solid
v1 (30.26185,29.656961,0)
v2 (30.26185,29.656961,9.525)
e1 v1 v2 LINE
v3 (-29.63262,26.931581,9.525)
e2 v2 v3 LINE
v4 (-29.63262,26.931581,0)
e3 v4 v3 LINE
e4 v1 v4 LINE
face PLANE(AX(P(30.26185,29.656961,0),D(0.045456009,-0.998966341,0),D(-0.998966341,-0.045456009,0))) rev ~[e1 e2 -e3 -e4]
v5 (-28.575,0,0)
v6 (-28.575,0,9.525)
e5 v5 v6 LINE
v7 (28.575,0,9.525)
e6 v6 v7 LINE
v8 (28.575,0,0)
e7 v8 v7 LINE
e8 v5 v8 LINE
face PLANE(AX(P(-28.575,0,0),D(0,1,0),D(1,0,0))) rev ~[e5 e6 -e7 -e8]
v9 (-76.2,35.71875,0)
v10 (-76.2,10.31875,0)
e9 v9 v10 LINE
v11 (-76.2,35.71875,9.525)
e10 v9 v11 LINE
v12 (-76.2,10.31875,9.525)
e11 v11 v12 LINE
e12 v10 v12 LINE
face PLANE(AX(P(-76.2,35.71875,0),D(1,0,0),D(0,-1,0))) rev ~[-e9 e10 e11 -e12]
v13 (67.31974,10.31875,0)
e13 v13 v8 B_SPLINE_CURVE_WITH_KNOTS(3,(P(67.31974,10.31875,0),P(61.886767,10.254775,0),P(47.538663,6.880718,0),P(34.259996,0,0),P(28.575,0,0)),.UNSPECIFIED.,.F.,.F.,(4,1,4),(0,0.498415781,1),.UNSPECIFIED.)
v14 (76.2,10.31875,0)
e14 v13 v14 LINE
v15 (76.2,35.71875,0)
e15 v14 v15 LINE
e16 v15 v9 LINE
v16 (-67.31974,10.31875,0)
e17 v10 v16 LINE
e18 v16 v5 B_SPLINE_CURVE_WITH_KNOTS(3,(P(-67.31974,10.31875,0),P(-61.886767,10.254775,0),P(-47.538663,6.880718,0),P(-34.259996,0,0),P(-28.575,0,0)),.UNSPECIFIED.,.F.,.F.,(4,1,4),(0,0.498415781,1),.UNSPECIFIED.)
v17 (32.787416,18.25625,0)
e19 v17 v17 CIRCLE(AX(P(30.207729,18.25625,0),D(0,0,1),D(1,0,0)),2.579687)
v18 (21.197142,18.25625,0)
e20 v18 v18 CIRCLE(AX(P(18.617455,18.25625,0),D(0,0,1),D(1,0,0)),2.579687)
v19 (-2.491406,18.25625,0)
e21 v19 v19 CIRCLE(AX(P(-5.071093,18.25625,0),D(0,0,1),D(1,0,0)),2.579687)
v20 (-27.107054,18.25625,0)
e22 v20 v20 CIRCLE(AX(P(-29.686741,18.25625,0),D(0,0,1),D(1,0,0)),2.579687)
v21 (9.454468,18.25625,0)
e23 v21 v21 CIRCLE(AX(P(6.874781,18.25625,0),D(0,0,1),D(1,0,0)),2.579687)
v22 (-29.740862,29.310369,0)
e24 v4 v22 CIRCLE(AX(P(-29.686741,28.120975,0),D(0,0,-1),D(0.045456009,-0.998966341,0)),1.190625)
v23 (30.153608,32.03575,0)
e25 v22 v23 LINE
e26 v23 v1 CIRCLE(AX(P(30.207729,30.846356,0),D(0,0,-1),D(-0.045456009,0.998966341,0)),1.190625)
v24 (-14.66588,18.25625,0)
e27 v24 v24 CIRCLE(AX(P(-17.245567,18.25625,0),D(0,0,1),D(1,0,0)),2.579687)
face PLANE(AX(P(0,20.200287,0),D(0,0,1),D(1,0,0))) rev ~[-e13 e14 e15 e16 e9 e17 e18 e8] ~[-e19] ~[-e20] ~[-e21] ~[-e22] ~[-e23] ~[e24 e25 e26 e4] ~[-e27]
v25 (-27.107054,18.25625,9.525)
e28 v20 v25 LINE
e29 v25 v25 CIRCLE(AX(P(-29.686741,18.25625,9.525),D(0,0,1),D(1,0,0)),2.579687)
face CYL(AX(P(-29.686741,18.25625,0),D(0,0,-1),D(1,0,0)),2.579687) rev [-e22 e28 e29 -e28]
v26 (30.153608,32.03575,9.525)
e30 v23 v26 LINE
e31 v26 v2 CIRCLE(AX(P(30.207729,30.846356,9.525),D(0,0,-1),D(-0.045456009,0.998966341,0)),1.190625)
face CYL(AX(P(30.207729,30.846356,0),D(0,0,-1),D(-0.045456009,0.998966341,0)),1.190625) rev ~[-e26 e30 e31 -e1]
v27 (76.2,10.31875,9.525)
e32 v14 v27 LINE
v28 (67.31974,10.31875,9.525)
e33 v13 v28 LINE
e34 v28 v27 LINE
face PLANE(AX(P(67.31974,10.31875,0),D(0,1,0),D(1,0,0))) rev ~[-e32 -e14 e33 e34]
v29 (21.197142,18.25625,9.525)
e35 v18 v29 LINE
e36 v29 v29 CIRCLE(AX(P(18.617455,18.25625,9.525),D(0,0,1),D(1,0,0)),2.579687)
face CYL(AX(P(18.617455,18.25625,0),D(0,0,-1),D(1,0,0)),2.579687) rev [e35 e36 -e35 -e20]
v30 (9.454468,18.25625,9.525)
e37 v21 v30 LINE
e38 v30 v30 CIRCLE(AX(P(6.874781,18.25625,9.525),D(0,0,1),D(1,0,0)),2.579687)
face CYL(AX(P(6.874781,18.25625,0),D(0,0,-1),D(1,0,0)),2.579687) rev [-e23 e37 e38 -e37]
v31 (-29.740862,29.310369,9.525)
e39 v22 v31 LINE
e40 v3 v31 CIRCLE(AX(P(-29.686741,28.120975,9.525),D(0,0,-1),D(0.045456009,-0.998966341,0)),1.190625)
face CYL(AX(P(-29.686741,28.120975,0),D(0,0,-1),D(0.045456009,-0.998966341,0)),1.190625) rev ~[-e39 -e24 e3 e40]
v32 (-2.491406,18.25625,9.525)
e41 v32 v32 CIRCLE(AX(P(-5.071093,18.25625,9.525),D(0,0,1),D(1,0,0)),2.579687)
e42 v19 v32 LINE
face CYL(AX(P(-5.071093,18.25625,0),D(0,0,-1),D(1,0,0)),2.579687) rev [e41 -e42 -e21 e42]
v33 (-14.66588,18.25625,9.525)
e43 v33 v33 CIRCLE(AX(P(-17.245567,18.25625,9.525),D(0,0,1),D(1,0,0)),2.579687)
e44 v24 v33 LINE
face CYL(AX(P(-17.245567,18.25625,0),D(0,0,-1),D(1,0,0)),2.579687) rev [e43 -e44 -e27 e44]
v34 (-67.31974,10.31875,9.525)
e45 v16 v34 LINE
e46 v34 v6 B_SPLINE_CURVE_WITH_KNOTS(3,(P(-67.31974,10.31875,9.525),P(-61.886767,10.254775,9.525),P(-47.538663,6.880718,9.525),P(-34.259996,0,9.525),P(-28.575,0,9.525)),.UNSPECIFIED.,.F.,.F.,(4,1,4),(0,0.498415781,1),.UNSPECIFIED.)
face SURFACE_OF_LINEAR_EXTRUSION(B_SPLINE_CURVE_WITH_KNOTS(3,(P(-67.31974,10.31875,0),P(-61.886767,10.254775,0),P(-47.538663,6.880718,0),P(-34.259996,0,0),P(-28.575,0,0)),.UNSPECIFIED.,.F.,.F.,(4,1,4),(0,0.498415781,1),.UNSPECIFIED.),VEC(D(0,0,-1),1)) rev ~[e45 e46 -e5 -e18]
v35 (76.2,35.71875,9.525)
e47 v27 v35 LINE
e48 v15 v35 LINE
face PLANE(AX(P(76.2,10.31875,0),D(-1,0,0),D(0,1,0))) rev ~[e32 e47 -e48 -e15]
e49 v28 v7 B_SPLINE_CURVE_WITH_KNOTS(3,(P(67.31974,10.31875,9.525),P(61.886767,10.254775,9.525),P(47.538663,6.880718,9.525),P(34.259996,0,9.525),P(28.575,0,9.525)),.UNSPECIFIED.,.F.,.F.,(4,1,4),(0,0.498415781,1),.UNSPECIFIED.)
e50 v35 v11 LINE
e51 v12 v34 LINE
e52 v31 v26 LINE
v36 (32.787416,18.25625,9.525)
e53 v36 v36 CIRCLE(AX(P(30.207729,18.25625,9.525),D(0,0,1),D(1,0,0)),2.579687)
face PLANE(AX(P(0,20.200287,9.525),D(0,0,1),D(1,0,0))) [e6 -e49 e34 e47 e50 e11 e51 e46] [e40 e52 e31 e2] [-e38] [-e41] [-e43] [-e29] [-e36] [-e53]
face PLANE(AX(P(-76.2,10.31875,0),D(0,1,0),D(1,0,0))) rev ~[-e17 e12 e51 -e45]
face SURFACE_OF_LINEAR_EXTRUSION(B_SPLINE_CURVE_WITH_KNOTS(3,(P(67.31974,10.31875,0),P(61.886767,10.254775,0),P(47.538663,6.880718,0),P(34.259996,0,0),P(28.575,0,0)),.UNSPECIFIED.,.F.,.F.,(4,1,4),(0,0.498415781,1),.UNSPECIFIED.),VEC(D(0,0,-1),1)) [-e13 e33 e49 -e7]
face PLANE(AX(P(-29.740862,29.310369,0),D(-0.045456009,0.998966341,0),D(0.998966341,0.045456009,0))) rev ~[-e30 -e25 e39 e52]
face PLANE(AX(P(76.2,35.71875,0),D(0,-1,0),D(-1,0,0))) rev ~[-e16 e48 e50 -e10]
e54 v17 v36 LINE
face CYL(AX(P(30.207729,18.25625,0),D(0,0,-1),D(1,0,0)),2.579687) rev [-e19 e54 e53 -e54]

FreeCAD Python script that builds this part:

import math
import FreeCAD as App
import Part
import Sketcher
from FreeCAD import Vector
Q = App.Units.Quantity

doc = App.newDocument("Part")
body = doc.addObject("PartDesign::Body", "Body")

# Sketch on XY plane
sketch1 = body.newObject("Sketcher::SketchObject", "Sketch")
sketch1.AttachmentSupport = (doc.getObject("XY_Plane"), [""])
sketch1.MapMode = "FlatFace"
sketch1.addGeometry([
    Part.LineSegment(Vector(76.2, 35.71875, 0), Vector(-76.2, 35.71875, 0)),  # 0
    Part.LineSegment(Vector(-76.2, 35.71875, 0), Vector(-76.2, 10.31875, 0)),  # 1
    Part.LineSegment(Vector(-76.2, 10.31875, 0), Vector(-67.31974, 10.31875, 0)),  # 2
    Part.BSplineCurve([Vector(-67.31974, 10.31875, 0), Vector(-61.886767, 10.254775, 0), Vector(-47.538663, 6.880718, 0), Vector(-34.259996, 0, 0), Vector(-28.575, 0, 0)], [4, 1, 4], [0, 0.498415781, 1], False, 3, [1, 1, 1, 1, 1], False),  # 3
    Part.LineSegment(Vector(-28.575, 0, 0), Vector(28.575, 0, 0)),  # 4
    Part.BSplineCurve([Vector(67.31974, 10.31875, 0), Vector(61.886767, 10.254775, 0), Vector(47.538663, 6.880718, 0), Vector(34.259996, 0, 0), Vector(28.575, 0, 0)], [4, 1, 4], [0, 0.498415781, 1], False, 3, [1, 1, 1, 1, 1], False),  # 5
    Part.LineSegment(Vector(67.31974, 10.31875, 0), Vector(76.2, 10.31875, 0)),  # 6
    Part.LineSegment(Vector(76.2, 10.31875, 0), Vector(76.2, 35.71875, 0)),  # 7
    Part.Circle(Vector(-29.686741, 18.25625, 0), Vector(0, 0, 1), 2.579687),  # 8
    Part.Circle(Vector(-17.245567, 18.25625, 0), Vector(0, 0, 1), 2.579687),  # 9
    Part.Circle(Vector(-5.071093, 18.25625, 0), Vector(0, 0, 1), 2.579687),  # 10
    Part.Circle(Vector(6.874781, 18.25625, 0), Vector(0, 0, 1), 2.579687),  # 11
    Part.Circle(Vector(18.617455, 18.25625, 0), Vector(0, 0, 1), 2.579687),  # 12
    Part.Circle(Vector(30.207729, 18.25625, 0), Vector(0, 0, 1), 2.579687),  # 13
    Part.LineSegment(Vector(30.26185, 29.656961, 0), Vector(-29.63262, 26.931581, 0)),  # 14
    Part.ArcOfCircle(Part.Circle(Vector(-29.686741, 28.120975, 0), Vector(0, 0, 1), 1.190625), math.radians(92.605335), math.radians(272.605335)),  # 15
    Part.LineSegment(Vector(-29.740862, 29.310369, 0), Vector(30.153608, 32.03575, 0)),  # 16
    Part.ArcOfCircle(Part.Circle(Vector(30.207729, 30.846356, 0), Vector(0, 0, 1), 1.190625), math.radians(-87.394665), math.radians(92.605335)),  # 17
], False)
sketch1.addConstraint([
    Sketcher.Constraint("Block", 3),
    Sketcher.Constraint("Block", 5),
    Sketcher.Constraint("Coincident", 0, 2, 1, 1),
    Sketcher.Constraint("Coincident", 1, 2, 2, 1),
    Sketcher.Constraint("Coincident", 2, 2, 3, 1),
    Sketcher.Constraint("Coincident", 3, 2, 4, 1),
    Sketcher.Constraint("Coincident", 4, 2, 5, 2),
    Sketcher.Constraint("Coincident", 5, 1, 6, 1),
    Sketcher.Constraint("Coincident", 6, 2, 7, 1),
    Sketcher.Constraint("Coincident", 7, 2, 0, 1),
    Sketcher.Constraint("Coincident", 14, 2, 15, 2),
    Sketcher.Constraint("Coincident", 15, 1, 16, 1),
    Sketcher.Constraint("Coincident", 16, 2, 17, 2),
    Sketcher.Constraint("Coincident", 17, 1, 14, 1),
    Sketcher.Constraint("Horizontal", 0),
    Sketcher.Constraint("Vertical", 1),
    Sketcher.Constraint("Horizontal", 2),
    Sketcher.Constraint("Horizontal", 6),
    Sketcher.Constraint("Vertical", 7),
    Sketcher.Constraint("DistanceX", 0, 2, 0, 1, Q("6 in")),
    Sketcher.Constraint("DistanceY", 1, 2, 1, 1, Q("1 in")),
    Sketcher.Constraint("Diameter", 8, Q("0.203125 in")),
    Sketcher.Constraint("Diameter", 9, Q("0.203125 in")),
    Sketcher.Constraint("Diameter", 10, Q("0.203125 in")),
    Sketcher.Constraint("Diameter", 11, Q("0.203125 in")),
    Sketcher.Constraint("Diameter", 12, Q("0.203125 in")),
    Sketcher.Constraint("Diameter", 13, Q("0.203125 in")),
    Sketcher.Constraint("DistanceX", 0, 2, -1, 1, Q("3 in")),
    Sketcher.Constraint("Radius", 15, Q("0.046875 in")),
    Sketcher.Constraint("Radius", 17, Q("0.046875 in")),
    Sketcher.Constraint("DistanceY", -1, 1, 8, 3, Q("0.71875 in")),
    Sketcher.Constraint("DistanceY", -1, 1, 9, 3, Q("0.71875 in")),
    Sketcher.Constraint("DistanceY", -1, 1, 10, 3, Q("0.71875 in")),
    Sketcher.Constraint("DistanceY", -1, 1, 11, 3, Q("0.71875 in")),
    Sketcher.Constraint("DistanceY", -1, 1, 12, 3, Q("0.71875 in")),
    Sketcher.Constraint("DistanceY", -1, 1, 13, 3, Q("0.71875 in")),
    Sketcher.Constraint("DistanceX", 15, 1, -1, 1, Q("1.1709001 in")),
    Sketcher.Constraint("DistanceY", 13, 3, 16, 2, Q("0.5425 in")),
    Sketcher.Constraint("DistanceX", 2, 2, 8, 3, 37.632999),
    Sketcher.Constraint("DistanceX", 2, 2, 15, 3, 37.632999),
    Sketcher.Constraint("DistanceX", 14, 2, 11, 3, 36.507401),
    Sketcher.Constraint("DistanceX", -1, 1, 11, 3, 6.874781),
    Sketcher.Constraint("DistanceX", -1, 1, 13, 3, 30.207729),
    Sketcher.Constraint("DistanceX", -1, 1, 17, 3, 30.207729),
    Sketcher.Constraint("DistanceY", -1, 1, 14, 2, 26.931581),
    Sketcher.Constraint("DistanceX", -1, 1, 17, 1, 30.26185),
    Sketcher.Constraint("DistanceY", -1, 1, 17, 1, 29.656961),
    Sketcher.Constraint("DistanceX", 8, 3, 10, 3, 24.615648),
    Sketcher.Constraint("DistanceX", 9, 3, 11, 3, 24.120348),
    Sketcher.Constraint("DistanceX", 10, 3, 12, 3, 23.688548),
])
pad1 = body.newObject("PartDesign::Pad", "Pad")
pad1.Profile = sketch1
pad1.Length = Q("0.375 in")

doc.recompute()
